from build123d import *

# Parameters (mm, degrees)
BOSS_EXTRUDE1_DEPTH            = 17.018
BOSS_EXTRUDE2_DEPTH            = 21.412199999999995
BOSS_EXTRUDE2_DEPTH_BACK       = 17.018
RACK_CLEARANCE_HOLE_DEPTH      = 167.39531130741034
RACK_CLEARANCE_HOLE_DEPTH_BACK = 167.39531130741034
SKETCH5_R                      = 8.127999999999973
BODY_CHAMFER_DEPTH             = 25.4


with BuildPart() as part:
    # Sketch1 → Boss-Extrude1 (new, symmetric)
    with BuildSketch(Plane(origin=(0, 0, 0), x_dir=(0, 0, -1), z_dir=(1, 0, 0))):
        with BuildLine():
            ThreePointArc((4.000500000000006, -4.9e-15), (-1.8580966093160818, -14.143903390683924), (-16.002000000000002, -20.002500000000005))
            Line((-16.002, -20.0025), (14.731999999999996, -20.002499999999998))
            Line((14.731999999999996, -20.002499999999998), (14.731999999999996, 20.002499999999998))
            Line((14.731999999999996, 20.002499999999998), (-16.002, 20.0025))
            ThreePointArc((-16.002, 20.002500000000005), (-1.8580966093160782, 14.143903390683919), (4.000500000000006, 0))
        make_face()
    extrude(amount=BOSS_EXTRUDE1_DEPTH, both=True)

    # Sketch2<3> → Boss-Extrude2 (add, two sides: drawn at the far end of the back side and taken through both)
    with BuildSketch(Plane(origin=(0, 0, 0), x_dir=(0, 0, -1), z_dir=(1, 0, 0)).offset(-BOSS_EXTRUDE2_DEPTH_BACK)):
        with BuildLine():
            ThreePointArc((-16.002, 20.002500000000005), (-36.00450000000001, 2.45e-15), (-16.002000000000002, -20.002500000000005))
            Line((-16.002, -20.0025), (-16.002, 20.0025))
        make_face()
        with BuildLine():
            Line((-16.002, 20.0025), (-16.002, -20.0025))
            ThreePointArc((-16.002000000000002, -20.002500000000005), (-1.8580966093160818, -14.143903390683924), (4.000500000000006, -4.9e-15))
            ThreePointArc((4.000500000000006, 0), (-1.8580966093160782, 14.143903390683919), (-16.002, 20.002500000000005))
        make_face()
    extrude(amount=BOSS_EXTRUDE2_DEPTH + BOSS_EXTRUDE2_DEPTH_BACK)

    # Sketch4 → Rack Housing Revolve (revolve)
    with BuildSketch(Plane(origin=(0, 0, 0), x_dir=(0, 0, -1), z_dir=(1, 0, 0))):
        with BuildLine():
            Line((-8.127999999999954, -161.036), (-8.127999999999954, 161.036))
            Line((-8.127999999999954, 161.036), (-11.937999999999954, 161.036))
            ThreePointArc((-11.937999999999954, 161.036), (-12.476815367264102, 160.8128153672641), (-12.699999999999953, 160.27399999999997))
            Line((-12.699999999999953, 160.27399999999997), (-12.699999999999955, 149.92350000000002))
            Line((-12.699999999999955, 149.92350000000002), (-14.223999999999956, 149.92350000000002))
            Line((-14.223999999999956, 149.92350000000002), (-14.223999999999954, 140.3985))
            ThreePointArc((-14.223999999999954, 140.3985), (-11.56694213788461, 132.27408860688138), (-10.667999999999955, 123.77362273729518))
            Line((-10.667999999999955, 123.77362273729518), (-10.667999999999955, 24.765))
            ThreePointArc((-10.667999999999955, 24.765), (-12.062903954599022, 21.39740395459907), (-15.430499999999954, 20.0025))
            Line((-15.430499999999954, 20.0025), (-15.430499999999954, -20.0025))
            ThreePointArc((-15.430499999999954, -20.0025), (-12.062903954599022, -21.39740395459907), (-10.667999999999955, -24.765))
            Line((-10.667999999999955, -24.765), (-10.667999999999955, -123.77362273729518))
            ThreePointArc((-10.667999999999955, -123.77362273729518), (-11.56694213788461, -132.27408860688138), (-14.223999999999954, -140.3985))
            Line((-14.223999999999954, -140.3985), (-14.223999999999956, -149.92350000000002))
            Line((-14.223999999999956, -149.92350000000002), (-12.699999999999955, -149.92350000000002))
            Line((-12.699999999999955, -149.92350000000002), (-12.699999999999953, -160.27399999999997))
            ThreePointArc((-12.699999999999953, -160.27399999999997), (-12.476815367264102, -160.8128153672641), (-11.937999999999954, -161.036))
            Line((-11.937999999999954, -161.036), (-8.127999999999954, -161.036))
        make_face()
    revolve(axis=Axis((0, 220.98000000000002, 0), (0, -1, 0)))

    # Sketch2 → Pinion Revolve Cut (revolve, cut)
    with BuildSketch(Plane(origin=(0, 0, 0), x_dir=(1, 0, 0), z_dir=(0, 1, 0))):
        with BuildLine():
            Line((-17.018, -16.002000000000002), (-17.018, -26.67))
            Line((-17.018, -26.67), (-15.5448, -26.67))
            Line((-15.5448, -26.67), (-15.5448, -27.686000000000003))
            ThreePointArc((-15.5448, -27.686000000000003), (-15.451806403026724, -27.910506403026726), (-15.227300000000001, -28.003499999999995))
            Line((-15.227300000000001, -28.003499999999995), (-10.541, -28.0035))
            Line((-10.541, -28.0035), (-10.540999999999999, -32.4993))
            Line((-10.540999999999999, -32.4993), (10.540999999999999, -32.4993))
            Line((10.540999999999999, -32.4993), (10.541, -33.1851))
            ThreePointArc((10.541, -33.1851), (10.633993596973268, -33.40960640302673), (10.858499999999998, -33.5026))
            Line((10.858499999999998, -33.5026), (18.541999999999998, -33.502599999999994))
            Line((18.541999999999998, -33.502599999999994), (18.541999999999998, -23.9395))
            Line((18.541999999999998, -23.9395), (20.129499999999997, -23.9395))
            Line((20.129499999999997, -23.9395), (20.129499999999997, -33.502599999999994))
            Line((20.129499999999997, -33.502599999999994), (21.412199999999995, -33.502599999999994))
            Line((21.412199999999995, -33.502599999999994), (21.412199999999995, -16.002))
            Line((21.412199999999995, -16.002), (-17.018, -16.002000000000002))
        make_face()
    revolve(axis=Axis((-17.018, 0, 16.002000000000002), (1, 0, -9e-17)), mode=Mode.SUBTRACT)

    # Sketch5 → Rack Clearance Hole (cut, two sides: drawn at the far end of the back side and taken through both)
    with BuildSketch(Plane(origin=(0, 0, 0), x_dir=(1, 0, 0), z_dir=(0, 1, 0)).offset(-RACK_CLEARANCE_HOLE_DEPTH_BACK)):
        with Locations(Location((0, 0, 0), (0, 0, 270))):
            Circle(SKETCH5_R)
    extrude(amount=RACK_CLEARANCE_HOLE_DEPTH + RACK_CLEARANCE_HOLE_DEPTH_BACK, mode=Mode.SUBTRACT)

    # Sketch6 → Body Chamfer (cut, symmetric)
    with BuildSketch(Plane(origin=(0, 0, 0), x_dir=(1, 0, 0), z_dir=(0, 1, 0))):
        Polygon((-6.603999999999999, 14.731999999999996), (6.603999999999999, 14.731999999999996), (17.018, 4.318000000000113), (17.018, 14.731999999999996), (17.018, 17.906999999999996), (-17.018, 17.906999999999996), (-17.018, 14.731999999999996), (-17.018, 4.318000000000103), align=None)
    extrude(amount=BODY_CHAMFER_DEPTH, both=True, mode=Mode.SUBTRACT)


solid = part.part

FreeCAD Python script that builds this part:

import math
import FreeCAD as App
import Part
import Sketcher
from FreeCAD import Vector
Q = App.Units.Quantity

doc = App.newDocument("Part")
params = doc.addObject("Spreadsheet::Sheet", "Params")
for row, (alias, value) in enumerate([
    ("sketch1_height", "1.21 in"),
    ("pad1_length", "1.34 in"),
    ("sketch2_diameter", "1.575 in"),
    ("pad2_length", "0.843 in"),
    ("pad2_length2", "0.67 in"),
    ("sketch3_radius", "1.6 in"),
    ("sketch3_radius2", "0.03 in"),
    ("sketch3_radius3", "0.1875 in"),
    ("sketch3_width", "12.68 in"),
    ("sketch3_height", "0.15 in"),
    ("revolution_angle", "360 deg"),
    ("sketch4_width", "0.83 in"),
    ("sketch4_height", "0.42 in"),
    ("sketch4_height2", "0.04 in"),
    ("sketch4_width2", "0.058 in"),
    ("sketch4_width3", "0.0625 in"),
    ("groove_angle", "360 deg"),
    ("sketch5_diameter", "0.64 in"),
    ("sketch6_width", "0.52 in"),
    ("sketch6_width2", "1.34 in"),
    ("sketch6_height", "0.535 in"),
    ("pocket2_length", "2 in"),
], start=1):
    params.set(f"A{row}", alias)
    params.set(f"B{row}", "=" + value)
    params.setAlias(f"B{row}", alias)

body = doc.addObject("PartDesign::Body", "Body")

# Sketch on YZ plane
sketch1 = doc.addObject("Sketcher::SketchObject", "Sketch")
body.addObject(sketch1)
sketch1.AttachmentSupport = (doc.YZ_Plane, [""])
sketch1.MapMode = "FlatFace"
sketch1.addGeometry(Part.LineSegment(Vector(-20, 16, 0), Vector(-20, -15, 0)), False)
sketch1.addGeometry(Part.LineSegment(Vector(-20, -15, 0), Vector(20, -15, 0)), False)
sketch1.addGeometry(Part.LineSegment(Vector(20, -15, 0), Vector(20, 16, 0)), False)
sketch1.addGeometry(Part.ArcOfCircle(Part.Circle(Vector(0, 16, 0), Vector(0, 0, 1), 20), math.radians(180), math.radians(360)), False)
sketch1.addConstraint(Sketcher.Constraint("Coincident", 0, 2, 1, 1))
sketch1.addConstraint(Sketcher.Constraint("Coincident", 1, 2, 2, 1))
sketch1.addConstraint(Sketcher.Constraint("Tangent", 2, 2, 3, 2))
sketch1.addConstraint(Sketcher.Constraint("Tangent", 3, 1, 0, 1))
sketch1.addConstraint(Sketcher.Constraint("Vertical", 0))
sketch1.addConstraint(Sketcher.Constraint("Horizontal", 1))
sketch1.addConstraint(Sketcher.Constraint("Vertical", 2))
sketch1.addConstraint(Sketcher.Constraint("PointOnObject", 3, 3, -2))
sketch1.addConstraint(Sketcher.Constraint("DistanceY", 0, 2, 0, 1, Q("1.21 in")))
sketch1.addConstraint(Sketcher.Constraint("Radius", 3, Q("0.7875 in")))
sketch1.addConstraint(Sketcher.Constraint("DistanceY", -1, 1, 3, 3, Q("0.63 in")))
sketch1.setExpression("Constraints[8]", "Params.sketch1_height")
pad1 = doc.addObject("PartDesign::Pad", "Pad")
body.addObject(pad1)
pad1.Profile = sketch1
pad1.setExpression("Length", "Params.pad1_length")
pad1.Midplane = True

# Sketch on YZ plane
sketch2 = doc.addObject("Sketcher::SketchObject", "Sketch001")
body.addObject(sketch2)
sketch2.AttachmentSupport = (doc.YZ_Plane, [""])
sketch2.MapMode = "FlatFace"
sketch2.addGeometry(Part.Circle(Vector(0, 16, 0), Vector(0, 0, 1), 20), False)
sketch2.addConstraint(Sketcher.Constraint("PointOnObject", 0, 3, -2))
sketch2.addConstraint(Sketcher.Constraint("Diameter", 0, Q("1.575 in")))
sketch2.addConstraint(Sketcher.Constraint("DistanceY", -1, 1, 0, 3, Q("0.63 in")))
sketch2.setExpression("Constraints[1]", "Params.sketch2_diameter")
pad2 = doc.addObject("PartDesign::Pad", "Pad001")
body.addObject(pad2)
pad2.Profile = sketch2
pad2.Type = "TwoLengths"
pad2.setExpression("Length", "Params.pad2_length")
pad2.setExpression("Length2", "Params.pad2_length2")

# Sketch on YZ plane
sketch3 = doc.addObject("Sketcher::SketchObject", "Sketch002")
body.addObject(sketch3)
sketch3.AttachmentSupport = (doc.YZ_Plane, [""])
sketch3.MapMode = "FlatFace"
sketch3.addGeometry(Part.LineSegment(Vector(-161, 8.1, 0), Vector(161, 8.1, 0)), False)
sketch3.addGeometry(Part.LineSegment(Vector(161, 8.1, 0), Vector(161, 11.9, 0)), False)
sketch3.addGeometry(Part.ArcOfCircle(Part.Circle(Vector(160.3, 11.9, 0), Vector(0, 0, 1), 0.8), math.radians(0), math.radians(90)), False)
sketch3.addGeometry(Part.LineSegment(Vector(160.3, 12.7, 0), Vector(149.9, 12.7, 0)), False)
sketch3.addGeometry(Part.LineSegment(Vector(149.9, 12.7, 0), Vector(149.9, 14.2, 0)), False)
sketch3.addGeometry(Part.LineSegment(Vector(149.9, 14.2, 0), Vector(140.4, 14.2, 0)), False)
sketch3.addGeometry(Part.ArcOfCircle(Part.Circle(Vector(123.8, 51.3, 0), Vector(0, 0, 1), 40.6), math.radians(-90), math.radians(-66)), False)
sketch3.addGeometry(Part.LineSegment(Vector(123.8, 10.7, 0), Vector(24.8, 10.7, 0)), False)
sketch3.addGeometry(Part.ArcOfCircle(Part.Circle(Vector(24.8, 15.4, 0), Vector(0, 0, 1), 4.8), math.radians(180), math.radians(270)), False)
sketch3.addGeometry(Part.LineSegment(Vector(20, 15.4, 0), Vector(-20, 15.4, 0)), False)
sketch3.addGeometry(Part.ArcOfCircle(Part.Circle(Vector(-24.8, 15.4, 0), Vector(0, 0, 1), 4.8), math.radians(-90), math.radians(0)), False)
sketch3.addGeometry(Part.LineSegment(Vector(-24.8, 10.7, 0), Vector(-123.8, 10.7, 0)), False)
sketch3.addGeometry(Part.ArcOfCircle(Part.Circle(Vector(-123.8, 51.3, 0), Vector(0, 0, 1), 40.6), math.radians(-114), math.radians(-90)), False)
sketch3.addGeometry(Part.LineSegment(Vector(-140.4, 14.2, 0), Vector(-149.9, 14.2, 0)), False)
sketch3.addGeometry(Part.LineSegment(Vector(-149.9, 14.2, 0), Vector(-149.9, 12.7, 0)), False)
sketch3.addGeometry(Part.LineSegment(Vector(-149.9, 12.7, 0), Vector(-160.3, 12.7, 0)), False)
sketch3.addGeometry(Part.ArcOfCircle(Part.Circle(Vector(-160.3, 11.9, 0), Vector(0, 0, 1), 0.8), math.radians(90), math.radians(180)), False)
sketch3.addGeometry(Part.LineSegment(Vector(-161, 11.9, 0), Vector(-161, 8.1, 0)), False)
sketch3.addConstraint(Sketcher.Constraint("Coincident", 0, 2, 1, 1))
sketch3.addConstraint(Sketcher.Constraint("Tangent", 1, 2, 2, 1))
sketch3.addConstraint(Sketcher.Constraint("Tangent", 2, 2, 3, 1))
sketch3.addConstraint(Sketcher.Constraint("Coincident", 3, 2, 4, 1))
sketch3.addConstraint(Sketcher.Constraint("Coincident", 4, 2, 5, 1))
sketch3.addConstraint(Sketcher.Constraint("Coincident", 5, 2, 6, 2))
sketch3.addConstraint(Sketcher.Constraint("Tangent", 6, 1, 7, 1))
sketch3.addConstraint(Sketcher.Constraint("Tangent", 7, 2, 8, 2))
sketch3.addConstraint(Sketcher.Constraint("Coincident", 8, 1, 9, 1))
sketch3.addConstraint(Sketcher.Constraint("Coincident", 9, 2, 10, 2))
sketch3.addConstraint(Sketcher.Constraint("Tangent", 10, 1, 11, 1))
sketch3.addConstraint(Sketcher.Constraint("Tangent", 11, 2, 12, 2))
sketch3.addConstraint(Sketcher.Constraint("Coincident", 12, 1, 13, 1))
sketch3.addConstraint(Sketcher.Constraint("Coincident", 13, 2, 14, 1))
sketch3.addConstraint(Sketcher.Constraint("Coincident", 14, 2, 15, 1))
sketch3.addConstraint(Sketcher.Constraint("Tangent", 15, 2, 16, 1))
sketch3.addConstraint(Sketcher.Constraint("Tangent", 16, 2, 17, 1))
sketch3.addConstraint(Sketcher.Constraint("Coincident", 17, 2, 0, 1))
sketch3.addConstraint(Sketcher.Constraint("Horizontal", 0))
sketch3.addConstraint(Sketcher.Constraint("Vertical", 1))
sketch3.addConstraint(Sketcher.Constraint("Horizontal", 3))
sketch3.addConstraint(Sketcher.Constraint("Vertical", 4))
sketch3.addConstraint(Sketcher.Constraint("Horizontal", 5))
sketch3.addConstraint(Sketcher.Constraint("Horizontal", 7))
sketch3.addConstraint(Sketcher.Constraint("Horizontal", 9))
sketch3.addConstraint(Sketcher.Constraint("Horizontal", 11))
sketch3.addConstraint(Sketcher.Constraint("Horizontal", 13))
sketch3.addConstraint(Sketcher.Constraint("Vertical", 14))
sketch3.addConstraint(Sketcher.Constraint("Horizontal", 15))
sketch3.addConstraint(Sketcher.Constraint("Vertical", 17))
sketch3.addConstraint(Sketcher.Constraint("Equal", 8, 10))
sketch3.addConstraint(Sketcher.Constraint("Equal", 6, 12))
sketch3.addConstraint(Sketcher.Constraint("Equal", 2, 16))
sketch3.addConstraint(Sketcher.Constraint("Symmetric", 8, 3, 10, 3, -2))
sketch3.addConstraint(Sketcher.Constraint("Symmetric", 2, 3, 16, 3, -2))
sketch3.addConstraint(Sketcher.Constraint("Symmetric", 5, 2, 12, 1, -2))
sketch3.addConstraint(Sketcher.Constraint("Horizontal", 10, 3, 8, 1))
sketch3.addConstraint(Sketcher.Constraint("Equal", 5, 13))
sketch3.addConstraint(Sketcher.Constraint("Radius", 6, Q("1.6 in")))
sketch3.addConstraint(Sketcher.Constraint("Radius", 2, Q("0.03 in")))
sketch3.addConstraint(Sketcher.Constraint("Radius", 8, Q("0.1875 in")))
sketch3.addConstraint(Sketcher.Constraint("DistanceX", 0, 1, 0, 2, Q("12.68 in")))
sketch3.addConstraint(Sketcher.Constraint("DistanceY", 1, 1, 1, 2, Q("0.15 in")))
sketch3.addConstraint(Sketcher.Constraint("DistanceY", 4, 1, 4, 2, Q("0.06 in")))
sketch3.addConstraint(Sketcher.Constraint("DistanceY", -1, 1, 2, 2, Q("0.5 in")))
sketch3.addConstraint(Sketcher.Constraint("DistanceY", 0, 2, 6, 3, Q("1.7 in")))
sketch3.addConstraint(Sketcher.Constraint("DistanceX", 5, 2, 5, 1, Q("0.375 in")))
sketch3.addConstraint(Sketcher.Constraint("DistanceX", 9, 2, 9, 1, Q("1.575 in")))
sketch3.addConstraint(Sketcher.Constraint("DistanceX", 3, 2, 3, 1, Q("0.4075 in")))
sketch3.setExpression("Constraints[38]", "Params.sketch3_radius")
sketch3.setExpression("Constraints[39]", "Params.sketch3_radius2")
sketch3.setExpression("Constraints[40]", "Params.sketch3_radius3")
sketch3.setExpression("Constraints[41]", "Params.sketch3_width")
sketch3.setExpression("Constraints[42]", "Params.sketch3_height")
revolution = doc.addObject("PartDesign::Revolution", "Revolution")
body.addObject(revolution)
revolution.Profile = sketch3
revolution.ReferenceAxis = (sketch3, ["H_Axis"])
revolution.setExpression("Angle", "Params.revolution_angle")

# Sketch on XZ plane
sketch4 = doc.addObject("Sketcher::SketchObject", "Sketch003")
body.addObject(sketch4)
sketch4.AttachmentSupport = (doc.XZ_Plane, [""])
sketch4.MapMode = "FlatFace"
sketch4.addGeometry(Part.LineSegment(Vector(-17.02, 16, 0), Vector(-17.02, 26.67, 0)), False)
sketch4.addGeometry(Part.LineSegment(Vector(-17.02, 26.67, 0), Vector(-15.54, 26.67, 0)), False)
sketch4.addGeometry(Part.LineSegment(Vector(-15.54, 26.67, 0), Vector(-15.54, 27.69, 0)), False)
sketch4.addGeometry(Part.ArcOfCircle(Part.Circle(Vector(-15.23, 27.69, 0), Vector(0, 0, 1), 0.32), math.radians(90), math.radians(180)), False)
sketch4.addGeometry(Part.LineSegment(Vector(-15.23, 28, 0), Vector(-10.54, 28, 0)), False)
sketch4.addGeometry(Part.LineSegment(Vector(-10.54, 28, 0), Vector(-10.54, 32.5, 0)), False)
sketch4.addGeometry(Part.LineSegment(Vector(-10.54, 32.5, 0), Vector(10.54, 32.5, 0)), False)
sketch4.addGeometry(Part.LineSegment(Vector(10.54, 32.5, 0), Vector(10.54, 33.19, 0)), False)
sketch4.addGeometry(Part.ArcOfCircle(Part.Circle(Vector(10.86, 33.19, 0), Vector(0, 0, 1), 0.32), math.radians(90), math.radians(180)), False)
sketch4.addGeometry(Part.LineSegment(Vector(10.86, 33.5, 0), Vector(18.54, 33.5, 0)), False)
sketch4.addGeometry(Part.LineSegment(Vector(18.54, 33.5, 0), Vector(18.54, 23.94, 0)), False)
sketch4.addGeometry(Part.LineSegment(Vector(18.54, 23.94, 0), Vector(20.13, 23.94, 0)), False)
sketch4.addGeometry(Part.LineSegment(Vector(20.13, 23.94, 0), Vector(20.13, 33.5, 0)), False)
sketch4.addGeometry(Part.LineSegment(Vector(20.13, 33.5, 0), Vector(21.41, 33.5, 0)), False)
sketch4.addGeometry(Part.LineSegment(Vector(21.41, 33.5, 0), Vector(21.41, 16, 0)), False)
sketch4.addGeometry(Part.LineSegment(Vector(21.41, 16, 0), Vector(-17.02, 16, 0)), False)
sketch4.addGeometry(Part.LineSegment(Vector(-17.02, 16, 0), Vector(21.41, 16, 0)), True)  # axis
sketch4.addConstraint(Sketcher.Constraint("Coincident", 0, 2, 1, 1))
sketch4.addConstraint(Sketcher.Constraint("Coincident", 1, 2, 2, 1))
sketch4.addConstraint(Sketcher.Constraint("Tangent", 2, 2, 3, 2))
sketch4.addConstraint(Sketcher.Constraint("Tangent", 3, 1, 4, 1))
sketch4.addConstraint(Sketcher.Constraint("Coincident", 4, 2, 5, 1))
sketch4.addConstraint(Sketcher.Constraint("Coincident", 5, 2, 6, 1))
sketch4.addConstraint(Sketcher.Constraint("Coincident", 6, 2, 7, 1))
sketch4.addConstraint(Sketcher.Constraint("Tangent", 7, 2, 8, 2))
sketch4.addConstraint(Sketcher.Constraint("Tangent", 8, 1, 9, 1))
sketch4.addConstraint(Sketcher.Constraint("Coincident", 9, 2, 10, 1))
sketch4.addConstraint(Sketcher.Constraint("Coincident", 10, 2, 11, 1))
sketch4.addConstraint(Sketcher.Constraint("Coincident", 11, 2, 12, 1))
sketch4.addConstraint(Sketcher.Constraint("Coincident", 12, 2, 13, 1))
sketch4.addConstraint(Sketcher.Constraint("Coincident", 13, 2, 14, 1))
sketch4.addConstraint(Sketcher.Constraint("Coincident", 14, 2, 15, 1))
sketch4.addConstraint(Sketcher.Constraint("Coincident", 15, 2, 0, 1))
sketch4.addConstraint(Sketcher.Constraint("Vertical", 0))
sketch4.addConstraint(Sketcher.Constraint("Horizontal", 1))
sketch4.addConstraint(Sketcher.Constraint("Vertical", 2))
sketch4.addConstraint(Sketcher.Constraint("Horizontal", 4))
sketch4.addConstraint(Sketcher.Constraint("Vertical", 5))
sketch4.addConstraint(Sketcher.Constraint("Horizontal", 6))
sketch4.addConstraint(Sketcher.Constraint("Vertical", 7))
sketch4.addConstraint(Sketcher.Constraint("Horizontal", 9))
sketch4.addConstraint(Sketcher.Constraint("Vertical", 10))
sketch4.addConstraint(Sketcher.Constraint("Horizontal", 11))
sketch4.addConstraint(Sketcher.Constraint("Vertical", 12))
sketch4.addConstraint(Sketcher.Constraint("Horizontal", 13))
sketch4.addConstraint(Sketcher.Constraint("Vertical", 14))
sketch4.addConstraint(Sketcher.Constraint("Horizontal", 15))
sketch4.addConstraint(Sketcher.Constraint("Horizontal", 16))
sketch4.addConstraint(Sketcher.Constraint("Coincident", 16, 1, 15, 2))
sketch4.addConstraint(Sketcher.Constraint("Equal", 3, 8))
sketch4.addConstraint(Sketcher.Constraint("Horizontal", 9, 2, 12, 2))
sketch4.addConstraint(Sketcher.Constraint("Vertical", 13, 2, 16, 2))
sketch4.addConstraint(Sketcher.Constraint("DistanceX", 6, 1, 6, 2, Q("0.83 in")))
sketch4.addConstraint(Sketcher.Constraint("DistanceY", 0, 1, 0, 2, Q("0.42 in")))
sketch4.addConstraint(Sketcher.Constraint("DistanceY", 2, 1, 2, 2, Q("0.04 in")))
sketch4.addConstraint(Sketcher.Constraint("Radius", 3, Q("0.0125 in")))
sketch4.addConstraint(Sketcher.Constraint("DistanceX", 1, 1, 1, 2, Q("0.058 in")))
sketch4.addConstraint(Sketcher.Constraint("DistanceX", 11, 1, 11, 2, Q("0.0625 in")))
sketch4.addConstraint(Sketcher.Constraint("DistanceX", 15, 2, 15, 1, Q("1.513 in")))
sketch4.addConstraint(Sketcher.Constraint("DistanceY", 5, 1, 5, 2, Q("0.177 in")))
sketch4.addConstraint(Sketcher.Constraint("DistanceY", 7, 1, 7, 2, Q("0.027 in")))
sketch4.addConstraint(Sketcher.Constraint("DistanceY", -1, 1, 3, 3, Q("1.09 in")))
sketch4.addConstraint(Sketcher.Constraint("DistanceX", 0, 2, -1, 1, Q("0.67 in")))
sketch4.addConstraint(Sketcher.Constraint("DistanceX", -1, 1, 9, 2, Q("0.73 in")))
sketch4.addConstraint(Sketcher.Constraint("DistanceX", 4, 1, 4, 2, Q("0.1845 in")))
sketch4.addConstraint(Sketcher.Constraint("DistanceY", 10, 2, 10, 1, Q("0.3765 in")))
sketch4.setExpression("Constraints[35]", "Params.sketch4_width")
sketch4.setExpression("Constraints[36]", "Params.sketch4_height")
sketch4.setExpression("Constraints[37]", "Params.sketch4_height2")
sketch4.setExpression("Constraints[39]", "Params.sketch4_width2")
sketch4.setExpression("Constraints[40]", "Params.sketch4_width3")
groove = doc.addObject("PartDesign::Groove", "Groove")
body.addObject(groove)
groove.Profile = sketch4
groove.ReferenceAxis = (sketch4, ["Axis0"])
groove.setExpression("Angle", "Params.groove_angle")

# Sketch on XZ plane
sketch5 = doc.addObject("Sketcher::SketchObject", "Sketch004")
body.addObject(sketch5)
sketch5.AttachmentSupport = (doc.XZ_Plane, [""])
sketch5.MapMode = "FlatFace"
sketch5.addGeometry(Part.Circle(Vector(0, 0, 0), Vector(0, 0, 1), 8), False)
sketch5.addConstraint(Sketcher.Constraint("Coincident", 0, 3, -1, 1))
sketch5.addConstraint(Sketcher.Constraint("Diameter", 0, Q("0.64 in")))
sketch5.setExpression("Constraints[1]", "Params.sketch5_diameter")
pocket1 = doc.addObject("PartDesign::Pocket", "Pocket")
body.addObject(pocket1)
pocket1.Profile = sketch5
pocket1.Type = "ThroughAll"
pocket1.Midplane = True

# Sketch on XZ plane
sketch6 = doc.addObject("Sketcher::SketchObject", "Sketch005")
body.addObject(sketch6)
sketch6.AttachmentSupport = (doc.XZ_Plane, [""])
sketch6.MapMode = "FlatFace"
sketch6.addGeometry(Part.LineSegment(Vector(-7, -15, 0), Vector(7, -15, 0)), False)
sketch6.addGeometry(Part.LineSegment(Vector(7, -15, 0), Vector(17, -4, 0)), False)
sketch6.addGeometry(Part.LineSegment(Vector(17, -4, 0), Vector(17, -18, 0)), False)
sketch6.addGeometry(Part.LineSegment(Vector(17, -18, 0), Vector(-17, -18, 0)), False)
sketch6.addGeometry(Part.LineSegment(Vector(-17, -18, 0), Vector(-17, -4, 0)), False)
sketch6.addGeometry(Part.LineSegment(Vector(-17, -4, 0), Vector(-7, -15, 0)), False)
sketch6.addConstraint(Sketcher.Constraint("Coincident", 0, 2, 1, 1))
sketch6.addConstraint(Sketcher.Constraint("Coincident", 1, 2, 2, 1))
sketch6.addConstraint(Sketcher.Constraint("Coincident", 2, 2, 3, 1))
sketch6.addConstraint(Sketcher.Constraint("Coincident", 3, 2, 4, 1))
sketch6.addConstraint(Sketcher.Constraint("Coincident", 4, 2, 5, 1))
sketch6.addConstraint(Sketcher.Constraint("Coincident", 5, 2, 0, 1))
sketch6.addConstraint(Sketcher.Constraint("Horizontal", 0))
sketch6.addConstraint(Sketcher.Constraint("Vertical", 2))
sketch6.addConstraint(Sketcher.Constraint("Horizontal", 3))
sketch6.addConstraint(Sketcher.Constraint("Vertical", 4))
sketch6.addConstraint(Sketcher.Constraint("Symmetric", 1, 2, 4, 2, -2))
sketch6.addConstraint(Sketcher.Constraint("Perpendicular", 1, 5))
sketch6.addConstraint(Sketcher.Constraint("Equal", 1, 5))
sketch6.addConstraint(Sketcher.Constraint("DistanceX", 0, 1, 0, 2, Q("0.52 in")))
sketch6.addConstraint(Sketcher.Constraint("DistanceX", 3, 2, 3, 1, Q("1.34 in")))
sketch6.addConstraint(Sketcher.Constraint("DistanceY", 2, 2, 2, 1, Q("0.535 in")))
sketch6.addConstraint(Sketcher.Constraint("DistanceY", 0, 2, -1, 1, Q("0.58 in")))
sketch6.setExpression("Constraints[13]", "Params.sketch6_width")
sketch6.setExpression("Constraints[14]", "Params.sketch6_width2")
sketch6.setExpression("Constraints[15]", "Params.sketch6_height")
pocket2 = doc.addObject("PartDesign::Pocket", "Pocket001")
body.addObject(pocket2)
pocket2.Profile = sketch6
pocket2.setExpression("Length", "Params.pocket2_length")
pocket2.Midplane = True

doc.recompute()
